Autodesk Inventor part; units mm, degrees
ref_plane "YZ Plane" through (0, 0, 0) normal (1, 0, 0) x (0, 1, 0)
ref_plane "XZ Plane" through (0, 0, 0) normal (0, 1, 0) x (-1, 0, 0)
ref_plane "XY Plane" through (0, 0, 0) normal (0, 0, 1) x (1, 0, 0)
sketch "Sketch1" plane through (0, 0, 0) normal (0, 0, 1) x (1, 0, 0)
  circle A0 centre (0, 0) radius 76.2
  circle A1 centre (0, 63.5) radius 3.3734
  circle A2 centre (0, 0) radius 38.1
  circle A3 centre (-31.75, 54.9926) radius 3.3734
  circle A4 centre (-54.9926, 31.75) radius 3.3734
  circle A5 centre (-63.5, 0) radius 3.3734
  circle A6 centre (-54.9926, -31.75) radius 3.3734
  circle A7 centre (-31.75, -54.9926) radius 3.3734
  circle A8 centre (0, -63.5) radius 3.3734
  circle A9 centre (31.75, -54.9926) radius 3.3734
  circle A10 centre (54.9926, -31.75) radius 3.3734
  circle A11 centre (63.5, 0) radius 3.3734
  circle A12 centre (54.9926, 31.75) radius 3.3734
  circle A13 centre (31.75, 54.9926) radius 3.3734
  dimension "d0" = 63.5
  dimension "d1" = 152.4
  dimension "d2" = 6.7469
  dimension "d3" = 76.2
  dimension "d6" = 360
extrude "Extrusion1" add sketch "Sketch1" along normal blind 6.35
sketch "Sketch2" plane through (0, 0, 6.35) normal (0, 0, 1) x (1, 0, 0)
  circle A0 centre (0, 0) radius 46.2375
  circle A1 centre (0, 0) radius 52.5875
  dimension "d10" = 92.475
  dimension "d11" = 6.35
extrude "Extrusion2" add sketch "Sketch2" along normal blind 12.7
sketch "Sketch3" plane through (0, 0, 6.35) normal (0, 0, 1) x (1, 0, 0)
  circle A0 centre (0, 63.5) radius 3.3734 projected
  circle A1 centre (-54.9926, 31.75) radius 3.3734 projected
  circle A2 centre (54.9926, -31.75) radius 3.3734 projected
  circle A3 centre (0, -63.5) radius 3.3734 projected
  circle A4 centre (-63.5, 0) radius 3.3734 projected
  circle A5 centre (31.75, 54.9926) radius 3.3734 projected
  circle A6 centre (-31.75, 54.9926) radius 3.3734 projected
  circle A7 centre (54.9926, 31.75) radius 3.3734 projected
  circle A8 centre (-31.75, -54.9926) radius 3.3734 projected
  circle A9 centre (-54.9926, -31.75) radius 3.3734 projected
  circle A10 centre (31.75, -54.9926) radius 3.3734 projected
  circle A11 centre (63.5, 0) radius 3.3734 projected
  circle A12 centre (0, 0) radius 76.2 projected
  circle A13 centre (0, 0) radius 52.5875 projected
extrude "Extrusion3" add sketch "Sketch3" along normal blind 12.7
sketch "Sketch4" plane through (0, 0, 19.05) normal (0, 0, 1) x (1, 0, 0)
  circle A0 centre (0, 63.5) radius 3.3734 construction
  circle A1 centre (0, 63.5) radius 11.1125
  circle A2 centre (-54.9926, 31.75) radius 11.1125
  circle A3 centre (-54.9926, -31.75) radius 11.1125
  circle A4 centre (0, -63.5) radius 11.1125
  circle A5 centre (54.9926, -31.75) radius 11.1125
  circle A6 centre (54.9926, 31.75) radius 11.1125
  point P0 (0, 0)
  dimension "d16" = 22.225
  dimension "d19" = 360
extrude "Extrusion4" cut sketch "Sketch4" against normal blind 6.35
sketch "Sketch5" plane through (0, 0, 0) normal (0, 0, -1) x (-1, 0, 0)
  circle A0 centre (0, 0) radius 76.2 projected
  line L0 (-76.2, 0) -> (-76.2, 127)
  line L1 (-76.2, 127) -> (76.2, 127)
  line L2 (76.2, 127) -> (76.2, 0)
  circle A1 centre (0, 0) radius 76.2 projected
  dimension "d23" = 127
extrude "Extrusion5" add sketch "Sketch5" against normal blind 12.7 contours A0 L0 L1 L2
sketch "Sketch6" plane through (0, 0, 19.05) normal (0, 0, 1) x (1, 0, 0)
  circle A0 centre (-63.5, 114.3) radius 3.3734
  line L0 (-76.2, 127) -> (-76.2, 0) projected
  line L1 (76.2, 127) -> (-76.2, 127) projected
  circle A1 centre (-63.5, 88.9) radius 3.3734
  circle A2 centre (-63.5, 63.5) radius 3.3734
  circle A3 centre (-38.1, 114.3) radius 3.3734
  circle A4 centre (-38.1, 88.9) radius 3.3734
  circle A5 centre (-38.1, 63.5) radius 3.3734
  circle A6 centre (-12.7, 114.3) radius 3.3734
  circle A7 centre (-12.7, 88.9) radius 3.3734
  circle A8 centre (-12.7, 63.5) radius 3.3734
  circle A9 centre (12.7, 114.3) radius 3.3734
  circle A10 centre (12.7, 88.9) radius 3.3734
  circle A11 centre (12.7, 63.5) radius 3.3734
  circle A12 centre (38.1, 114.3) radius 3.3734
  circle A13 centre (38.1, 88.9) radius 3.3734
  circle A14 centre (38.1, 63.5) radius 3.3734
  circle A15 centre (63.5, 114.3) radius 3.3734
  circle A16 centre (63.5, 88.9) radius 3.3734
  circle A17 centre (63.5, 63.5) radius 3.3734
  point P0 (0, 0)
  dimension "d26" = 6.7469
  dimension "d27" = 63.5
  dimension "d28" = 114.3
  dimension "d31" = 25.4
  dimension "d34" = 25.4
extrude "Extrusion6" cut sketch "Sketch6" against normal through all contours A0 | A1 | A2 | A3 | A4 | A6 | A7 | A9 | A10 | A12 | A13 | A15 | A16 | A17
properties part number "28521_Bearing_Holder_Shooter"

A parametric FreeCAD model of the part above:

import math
import FreeCAD as App
import Part
import Sketcher

V = App.Vector
Q = App.Units.Quantity

doc = App.newDocument("Part")
body = doc.addObject("PartDesign::Body", "Body")

sketch1 = body.newObject("Sketcher::SketchObject", "Sketch")
sketch1.AttachmentSupport = (doc.getObject("XY_Plane"), [""])
sketch1.MapMode = "FlatFace"
sketch1.addGeometry([
    Part.Circle(V(0, 0, 0), V(0, 0, 1), 76.2),
    Part.Circle(V(-31.8, -55, 0), V(0, 0, 1), 3.4),
    Part.Circle(V(-55, -31.8, 0), V(0, 0, 1), 3.4),
    Part.Circle(V(0, -63.5, 0), V(0, 0, 1), 3.4),
    Part.Circle(V(31.8, -55, 0), V(0, 0, 1), 3.4),
    Part.Circle(V(55, -31.8, 0), V(0, 0, 1), 3.4),
    Part.Circle(V(-63.5, 0, 0), V(0, 0, 1), 3.4),
    Part.Circle(V(-55, 31.8, 0), V(0, 0, 1), 3.4),
    Part.Circle(V(-31.8, 55, 0), V(0, 0, 1), 3.4),
    Part.Circle(V(0, 0, 0), V(0, 0, 1), 38.1),
    Part.Circle(V(63.5, 0, 0), V(0, 0, 1), 3.4),
    Part.Circle(V(55, 31.8, 0), V(0, 0, 1), 3.4),
    Part.Circle(V(31.8, 55, 0), V(0, 0, 1), 3.4),
    Part.Circle(V(0, 63.5, 0), V(0, 0, 1), 3.4),
], False)
sketch1.addConstraint([
    Sketcher.Constraint("Coincident", 0, 3, -1, 1),
    Sketcher.Constraint("Coincident", 9, 3, -1, 1),
    Sketcher.Constraint("Equal", 1, 2),
    Sketcher.Constraint("Equal", 2, 3),
    Sketcher.Constraint("Equal", 3, 4),
    Sketcher.Constraint("Equal", 4, 5),
    Sketcher.Constraint("Equal", 5, 6),
    Sketcher.Constraint("Equal", 6, 7),
    Sketcher.Constraint("Equal", 7, 8),
    Sketcher.Constraint("Equal", 8, 10),
    Sketcher.Constraint("Equal", 10, 11),
    Sketcher.Constraint("Equal", 11, 12),
    Sketcher.Constraint("Equal", 12, 13),
    Sketcher.Constraint("Symmetric", 5, 3, 7, 3, -1, 1),
    Sketcher.Constraint("Symmetric", 4, 3, 8, 3, -1, 1),
    Sketcher.Constraint("Symmetric", 6, 3, 10, 3, -1, 1),
    Sketcher.Constraint("Symmetric", 2, 3, 11, 3, -1, 1),
    Sketcher.Constraint("Symmetric", 1, 3, 12, 3, -1, 1),
    Sketcher.Constraint("Symmetric", 3, 3, 13, 3, -1, 1),
    Sketcher.Constraint("Symmetric", 1, 3, 4, 3, -2),
    Sketcher.Constraint("Symmetric", 2, 3, 5, 3, -2),
    Sketcher.Constraint("PointOnObject", 3, 3, -2),
    Sketcher.Constraint("PointOnObject", 6, 3, -1),
    Sketcher.Constraint("Diameter", 0, Q("6 in")),
    Sketcher.Constraint("Diameter", 9, Q("3 in")),
    Sketcher.Constraint("Diameter", 1, Q("0.265622 in")),
    Sketcher.Constraint("DistanceY", 3, 3, -1, 1, Q("2.5 in")),
    Sketcher.Constraint("DistanceX", 6, 3, -1, 1, Q("2.5 in")),
    Sketcher.Constraint("DistanceX", 1, 3, 4, 3, Q("2.5 in")),
    Sketcher.Constraint("DistanceY", 2, 3, 7, 3, Q("2.5 in")),
    Sketcher.Constraint("DistanceY", 1, 3, -1, 1, Q("54.9926 mm")),
    Sketcher.Constraint("DistanceX", 2, 3, -1, 1, Q("54.9926 mm")),
])
pad1 = body.newObject("PartDesign::Pad", "Pad")
pad1.Profile = sketch1
pad1.Length = Q("0.25 in")

sketch2 = body.newObject("Sketcher::SketchObject", "Sketch001")
sketch2.AttachmentSupport = (doc.getObject("XY_Plane"), [""])
sketch2.MapMode = "FlatFace"
sketch2.AttachmentOffset = App.Placement(V(0, 0, 0.25 * 25.4), App.Rotation())
sketch2.addGeometry([
    Part.Circle(V(0, 0, 0), V(0, 0, 1), 53),
    Part.Circle(V(0, 0, 0), V(0, 0, 1), 46),
], False)
sketch2.addConstraint([
    Sketcher.Constraint("Coincident", 0, 3, -1, 1),
    Sketcher.Constraint("Coincident", 1, 3, -1, 1),
    Sketcher.Constraint("Diameter", 1, Q("92.475 mm")),
    Sketcher.Constraint("Diameter", 0, Q("105.175 mm")),
])
pad2 = body.newObject("PartDesign::Pad", "Pad001")
pad2.Profile = sketch2
pad2.Length = Q("0.5 in")

sketch3 = body.newObject("Sketcher::SketchObject", "Sketch002")
sketch3.AttachmentSupport = (doc.getObject("XY_Plane"), [""])
sketch3.MapMode = "FlatFace"
sketch3.AttachmentOffset = App.Placement(V(0, 0, 0.25 * 25.4), App.Rotation())
sketch3.addGeometry([
    Part.Circle(V(0, 0, 0), V(0, 0, 1), 76.2),
    Part.Circle(V(-31.8, -55, 0), V(0, 0, 1), 3.4),
    Part.Circle(V(-55, -31.8, 0), V(0, 0, 1), 3.4),
    Part.Circle(V(0, -63.5, 0), V(0, 0, 1), 3.4),
    Part.Circle(V(31.8, -55, 0), V(0, 0, 1), 3.4),
    Part.Circle(V(55, -31.8, 0), V(0, 0, 1), 3.4),
    Part.Circle(V(-63.5, 0, 0), V(0, 0, 1), 3.4),
    Part.Circle(V(-55, 31.8, 0), V(0, 0, 1), 3.4),
    Part.Circle(V(-31.8, 55, 0), V(0, 0, 1), 3.4),
    Part.Circle(V(0, 0, 0), V(0, 0, 1), 52.6),
    Part.Circle(V(63.5, 0, 0), V(0, 0, 1), 3.4),
    Part.Circle(V(55, 31.8, 0), V(0, 0, 1), 3.4),
    Part.Circle(V(31.8, 55, 0), V(0, 0, 1), 3.4),
    Part.Circle(V(0, 63.5, 0), V(0, 0, 1), 3.4),
], False)
sketch3.addConstraint([
    Sketcher.Constraint("Coincident", 0, 3, -1, 1),
    Sketcher.Constraint("Coincident", 9, 3, -1, 1),
    Sketcher.Constraint("Equal", 1, 2),
    Sketcher.Constraint("Equal", 2, 3),
    Sketcher.Constraint("Equal", 3, 4),
    Sketcher.Constraint("Equal", 4, 5),
    Sketcher.Constraint("Equal", 5, 6),
    Sketcher.Constraint("Equal", 6, 7),
    Sketcher.Constraint("Equal", 7, 8),
    Sketcher.Constraint("Equal", 8, 10),
    Sketcher.Constraint("Equal", 10, 11),
    Sketcher.Constraint("Equal", 11, 12),
    Sketcher.Constraint("Equal", 12, 13),
    Sketcher.Constraint("Symmetric", 5, 3, 7, 3, -1, 1),
    Sketcher.Constraint("Symmetric", 4, 3, 8, 3, -1, 1),
    Sketcher.Constraint("Symmetric", 6, 3, 10, 3, -1, 1),
    Sketcher.Constraint("Symmetric", 2, 3, 11, 3, -1, 1),
    Sketcher.Constraint("Symmetric", 1, 3, 12, 3, -1, 1),
    Sketcher.Constraint("Symmetric", 3, 3, 13, 3, -1, 1),
    Sketcher.Constraint("Symmetric", 1, 3, 4, 3, -2),
    Sketcher.Constraint("Symmetric", 2, 3, 5, 3, -2),
    Sketcher.Constraint("PointOnObject", 3, 3, -2),
    Sketcher.Constraint("PointOnObject", 6, 3, -1),
    Sketcher.Constraint("Diameter", 0, Q("6 in")),
    Sketcher.Constraint("Diameter", 1, Q("0.265622 in")),
    Sketcher.Constraint("DistanceY", 3, 3, -1, 1, Q("2.5 in")),
    Sketcher.Constraint("DistanceX", 6, 3, -1, 1, Q("2.5 in")),
    Sketcher.Constraint("DistanceX", 1, 3, 4, 3, Q("2.5 in")),
    Sketcher.Constraint("DistanceY", 2, 3, 7, 3, Q("2.5 in")),
    Sketcher.Constraint("Diameter", 9, Q("105.175 mm")),
    Sketcher.Constraint("DistanceY", 1, 3, -1, 1, Q("54.9926 mm")),
    Sketcher.Constraint("DistanceX", 2, 3, -1, 1, Q("54.9926 mm")),
])
pad3 = body.newObject("PartDesign::Pad", "Pad002")
pad3.Profile = sketch3
pad3.Length = Q("0.5 in")

sketch4 = body.newObject("Sketcher::SketchObject", "Sketch003")
sketch4.AttachmentSupport = (doc.getObject("XY_Plane"), [""])
sketch4.MapMode = "FlatFace"
sketch4.AttachmentOffset = App.Placement(V(0, 0, 0.75 * 25.4), App.Rotation())
sketch4.addGeometry([
    Part.Circle(V(0, 64, 0), V(0, 0, 1), 11),
    Part.Circle(V(-55, 32, 0), V(0, 0, 1), 11),
    Part.Circle(V(-55, -32, 0), V(0, 0, 1), 11),
    Part.Circle(V(0, -64, 0), V(0, 0, 1), 11),
    Part.Circle(V(55, -32, 0), V(0, 0, 1), 11),
    Part.Circle(V(55, 32, 0), V(0, 0, 1), 11),
], False)
sketch4.addConstraint([
    Sketcher.Constraint("Equal", 0, 1),
    Sketcher.Constraint("Equal", 1, 2),
    Sketcher.Constraint("Equal", 2, 3),
    Sketcher.Constraint("Equal", 3, 4),
    Sketcher.Constraint("Equal", 4, 5),
    Sketcher.Constraint("Symmetric", 0, 3, 3, 3, -1, 1),
    Sketcher.Constraint("Symmetric", 1, 3, 4, 3, -1, 1),
    Sketcher.Constraint("Symmetric", 2, 3, 5, 3, -1, 1),
    Sketcher.Constraint("Symmetric", 2, 3, 4, 3, -2),
    Sketcher.Constraint("PointOnObject", 0, 3, -2),
    Sketcher.Constraint("Diameter", 0, Q("0.875 in")),
    Sketcher.Constraint("DistanceY", 3, 3, 0, 3, Q("5 in")),
    Sketcher.Constraint("DistanceY", 2, 3, 1, 3, Q("2.5 in")),
    Sketcher.Constraint("DistanceX", 1, 3, -1, 1, Q("54.9926 mm")),
])
pocket1 = body.newObject("PartDesign::Pocket", "Pocket")
pocket1.Profile = sketch4
pocket1.Length = Q("0.25 in")

sketch5 = body.newObject("Sketcher::SketchObject", "Sketch004")
sketch5.AttachmentSupport = (doc.getObject("XY_Plane"), [""])
sketch5.MapMode = "FlatFace"
sketch5.addGeometry([
    Part.ArcOfCircle(Part.Circle(V(0, 0, 0), V(0, 0, 1), 76), math.radians(0), math.radians(180)),
    Part.LineSegment(V(-76, 0, 0), V(-76, 127, 0)),
    Part.LineSegment(V(-76, 127, 0), V(76, 127, 0)),
    Part.LineSegment(V(76, 127, 0), V(76, 0, 0)),
], False)
sketch5.addConstraint([
    Sketcher.Constraint("Tangent", 0, 2, 1, 1),
    Sketcher.Constraint("Coincident", 1, 2, 2, 1),
    Sketcher.Constraint("Coincident", 2, 2, 3, 1),
    Sketcher.Constraint("Tangent", 3, 2, 0, 1),
    Sketcher.Constraint("Vertical", 1),
    Sketcher.Constraint("Horizontal", 2),
    Sketcher.Constraint("Vertical", 3),
    Sketcher.Constraint("Coincident", 0, 3, -1, 1),
    Sketcher.Constraint("DistanceY", 1, 1, 1, 2, Q("5 in")),
    Sketcher.Constraint("Radius", 0, Q("3 in")),
])
pad4 = body.newObject("PartDesign::Pad", "Pad003")
pad4.Profile = sketch5
pad4.Length = Q("0.5 in")

sketch6 = body.newObject("Sketcher::SketchObject", "Sketch005")
sketch6.AttachmentSupport = (doc.getObject("XY_Plane"), [""])
sketch6.MapMode = "FlatFace"
sketch6.AttachmentOffset = App.Placement(V(0, 0, 0.75 * 25.4), App.Rotation())
sketch6.addGeometry([
    Part.Circle(V(-63.5, 114.3, 0), V(0, 0, 1), 3.4),
    Part.Circle(V(-63.5, 88.9, 0), V(0, 0, 1), 3.4),
    Part.Circle(V(-63.5, 63.5, 0), V(0, 0, 1), 3.4),
    Part.Circle(V(-38.1, 114.3, 0), V(0, 0, 1), 3.4),
    Part.Circle(V(-38.1, 88.9, 0), V(0, 0, 1), 3.4),
    Part.Circle(V(-12.7, 114.3, 0), V(0, 0, 1), 3.4),
    Part.Circle(V(-12.7, 88.9, 0), V(0, 0, 1), 3.4),
    Part.Circle(V(12.7, 114.3, 0), V(0, 0, 1), 3.4),
    Part.Circle(V(12.7, 88.9, 0), V(0, 0, 1), 3.4),
    Part.Circle(V(38.1, 114.3, 0), V(0, 0, 1), 3.4),
    Part.Circle(V(38.1, 88.9, 0), V(0, 0, 1), 3.4),
    Part.Circle(V(63.5, 114.3, 0), V(0, 0, 1), 3.4),
    Part.Circle(V(63.5, 88.9, 0), V(0, 0, 1), 3.4),
    Part.Circle(V(63.5, 63.5, 0), V(0, 0, 1), 3.4),
], False)
sketch6.addConstraint([
    Sketcher.Constraint("Equal", 0, 1),
    Sketcher.Constraint("Equal", 1, 2),
    Sketcher.Constraint("Equal", 2, 3),
    Sketcher.Constraint("Equal", 3, 4),
    Sketcher.Constraint("Equal", 4, 5),
    Sketcher.Constraint("Equal", 5, 6),
    Sketcher.Constraint("Equal", 6, 7),
    Sketcher.Constraint("Equal", 7, 8),
    Sketcher.Constraint("Equal", 8, 9),
    Sketcher.Constraint("Equal", 9, 10),
    Sketcher.Constraint("Equal", 10, 11),
    Sketcher.Constraint("Equal", 11, 12),
    Sketcher.Constraint("Equal", 12, 13),
    Sketcher.Constraint("Symmetric", 5, 3, 7, 3, -2),
    Sketcher.Constraint("Symmetric", 6, 3, 8, 3, -2),
    Sketcher.Constraint("Symmetric", 3, 3, 9, 3, -2),
    Sketcher.Constraint("Symmetric", 4, 3, 10, 3, -2),
    Sketcher.Constraint("Symmetric", 0, 3, 11, 3, -2),
    Sketcher.Constraint("Symmetric", 1, 3, 12, 3, -2),
    Sketcher.Constraint("Symmetric", 2, 3, 13, 3, -2),
    Sketcher.Constraint("Horizontal", 0, 3, 3, 3),
    Sketcher.Constraint("Horizontal", 1, 3, 4, 3),
    Sketcher.Constraint("Horizontal", 3, 3, 5, 3),
    Sketcher.Constraint("Horizontal", 4, 3, 6, 3),
    Sketcher.Constraint("Vertical", 0, 3, 1, 3),
    Sketcher.Constraint("Vertical", 1, 3, 2, 3),
    Sketcher.Constraint("Vertical", 3, 3, 4, 3),
    Sketcher.Constraint("Vertical", 5, 3, 6, 3),
    Sketcher.Constraint("Diameter", 0, Q("0.265622 in")),
    Sketcher.Constraint("DistanceY", 1, 3, 0, 3, Q("1 in")),
    Sketcher.Constraint("DistanceY", 2, 3, 1, 3, Q("1 in")),
    Sketcher.Constraint("DistanceX", 0, 3, 3, 3, Q("1 in")),
    Sketcher.Constraint("DistanceX", 3, 3, 5, 3, Q("1 in")),
    Sketcher.Constraint("DistanceX", 5, 3, 7, 3, Q("1 in")),
    Sketcher.Constraint("DistanceY", -1, 1, 0, 3, Q("4.5 in")),
])
pocket2 = body.newObject("PartDesign::Pocket", "Pocket001")
pocket2.Profile = sketch6
pocket2.Type = "ThroughAll"

doc.recompute()
